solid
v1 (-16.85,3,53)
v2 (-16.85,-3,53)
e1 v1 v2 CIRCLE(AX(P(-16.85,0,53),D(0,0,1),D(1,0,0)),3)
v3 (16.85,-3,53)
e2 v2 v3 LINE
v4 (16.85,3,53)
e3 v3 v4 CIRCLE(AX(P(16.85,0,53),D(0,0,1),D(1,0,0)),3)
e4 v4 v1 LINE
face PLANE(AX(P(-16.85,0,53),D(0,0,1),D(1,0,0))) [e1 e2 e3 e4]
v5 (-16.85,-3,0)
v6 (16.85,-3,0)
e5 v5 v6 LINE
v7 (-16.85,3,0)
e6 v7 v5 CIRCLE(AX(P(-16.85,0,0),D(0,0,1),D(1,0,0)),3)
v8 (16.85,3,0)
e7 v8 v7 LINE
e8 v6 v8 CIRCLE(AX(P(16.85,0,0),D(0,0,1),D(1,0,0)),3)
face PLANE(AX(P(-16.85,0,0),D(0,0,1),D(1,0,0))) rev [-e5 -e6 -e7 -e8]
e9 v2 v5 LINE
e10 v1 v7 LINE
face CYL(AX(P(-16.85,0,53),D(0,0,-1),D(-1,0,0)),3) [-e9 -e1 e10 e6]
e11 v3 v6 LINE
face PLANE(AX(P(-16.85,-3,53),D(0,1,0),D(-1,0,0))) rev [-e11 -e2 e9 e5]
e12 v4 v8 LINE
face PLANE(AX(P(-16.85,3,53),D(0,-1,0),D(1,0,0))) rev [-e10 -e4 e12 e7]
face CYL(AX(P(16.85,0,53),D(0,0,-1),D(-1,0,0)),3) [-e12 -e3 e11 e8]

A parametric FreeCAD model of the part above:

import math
import FreeCAD as App
import Part
import Sketcher
Q = App.Units.Quantity

doc = App.newDocument("Part")
body = doc.addObject("PartDesign::Body", "Body")

# Sketch on XY plane
sketch1 = doc.addObject("Sketcher::SketchObject", "Sketch")
body.addObject(sketch1)
sketch1.AttachmentSupport = (doc.XY_Plane, [""])
sketch1.MapMode = "FlatFace"
sketch1.addGeometry(Part.LineSegment(App.Vector(16.9, 3, 0), App.Vector(-16.9, 3, 0)), False)
sketch1.addGeometry(Part.ArcOfCircle(Part.Circle(App.Vector(-16.9, 0, 0), App.Vector(0, 0, 1), 3), math.radians(90), math.radians(270)), False)
sketch1.addGeometry(Part.LineSegment(App.Vector(-16.9, -3, 0), App.Vector(16.9, -3, 0)), False)
sketch1.addGeometry(Part.ArcOfCircle(Part.Circle(App.Vector(16.9, 0, 0), App.Vector(0, 0, 1), 3), math.radians(-90), math.radians(90)), False)
sketch1.addConstraint(Sketcher.Constraint("Tangent", 0, 2, 1, 1))
sketch1.addConstraint(Sketcher.Constraint("Tangent", 1, 2, 2, 1))
sketch1.addConstraint(Sketcher.Constraint("Tangent", 2, 2, 3, 1))
sketch1.addConstraint(Sketcher.Constraint("Tangent", 3, 2, 0, 1))
sketch1.addConstraint(Sketcher.Constraint("Horizontal", 0))
sketch1.addConstraint(Sketcher.Constraint("Horizontal", 2))
sketch1.addConstraint(Sketcher.Constraint("Symmetric", 1, 3, 3, 3, -1, 1))
sketch1.addConstraint(Sketcher.Constraint("Radius", 1, Q("3 mm")))
sketch1.addConstraint(Sketcher.Constraint("DistanceX", 0, 2, 0, 1, Q("33.7 mm")))
pad1 = doc.addObject("PartDesign::Pad", "Pad")
body.addObject(pad1)
pad1.Profile = sketch1
pad1.Length = 53

doc.recompute()
